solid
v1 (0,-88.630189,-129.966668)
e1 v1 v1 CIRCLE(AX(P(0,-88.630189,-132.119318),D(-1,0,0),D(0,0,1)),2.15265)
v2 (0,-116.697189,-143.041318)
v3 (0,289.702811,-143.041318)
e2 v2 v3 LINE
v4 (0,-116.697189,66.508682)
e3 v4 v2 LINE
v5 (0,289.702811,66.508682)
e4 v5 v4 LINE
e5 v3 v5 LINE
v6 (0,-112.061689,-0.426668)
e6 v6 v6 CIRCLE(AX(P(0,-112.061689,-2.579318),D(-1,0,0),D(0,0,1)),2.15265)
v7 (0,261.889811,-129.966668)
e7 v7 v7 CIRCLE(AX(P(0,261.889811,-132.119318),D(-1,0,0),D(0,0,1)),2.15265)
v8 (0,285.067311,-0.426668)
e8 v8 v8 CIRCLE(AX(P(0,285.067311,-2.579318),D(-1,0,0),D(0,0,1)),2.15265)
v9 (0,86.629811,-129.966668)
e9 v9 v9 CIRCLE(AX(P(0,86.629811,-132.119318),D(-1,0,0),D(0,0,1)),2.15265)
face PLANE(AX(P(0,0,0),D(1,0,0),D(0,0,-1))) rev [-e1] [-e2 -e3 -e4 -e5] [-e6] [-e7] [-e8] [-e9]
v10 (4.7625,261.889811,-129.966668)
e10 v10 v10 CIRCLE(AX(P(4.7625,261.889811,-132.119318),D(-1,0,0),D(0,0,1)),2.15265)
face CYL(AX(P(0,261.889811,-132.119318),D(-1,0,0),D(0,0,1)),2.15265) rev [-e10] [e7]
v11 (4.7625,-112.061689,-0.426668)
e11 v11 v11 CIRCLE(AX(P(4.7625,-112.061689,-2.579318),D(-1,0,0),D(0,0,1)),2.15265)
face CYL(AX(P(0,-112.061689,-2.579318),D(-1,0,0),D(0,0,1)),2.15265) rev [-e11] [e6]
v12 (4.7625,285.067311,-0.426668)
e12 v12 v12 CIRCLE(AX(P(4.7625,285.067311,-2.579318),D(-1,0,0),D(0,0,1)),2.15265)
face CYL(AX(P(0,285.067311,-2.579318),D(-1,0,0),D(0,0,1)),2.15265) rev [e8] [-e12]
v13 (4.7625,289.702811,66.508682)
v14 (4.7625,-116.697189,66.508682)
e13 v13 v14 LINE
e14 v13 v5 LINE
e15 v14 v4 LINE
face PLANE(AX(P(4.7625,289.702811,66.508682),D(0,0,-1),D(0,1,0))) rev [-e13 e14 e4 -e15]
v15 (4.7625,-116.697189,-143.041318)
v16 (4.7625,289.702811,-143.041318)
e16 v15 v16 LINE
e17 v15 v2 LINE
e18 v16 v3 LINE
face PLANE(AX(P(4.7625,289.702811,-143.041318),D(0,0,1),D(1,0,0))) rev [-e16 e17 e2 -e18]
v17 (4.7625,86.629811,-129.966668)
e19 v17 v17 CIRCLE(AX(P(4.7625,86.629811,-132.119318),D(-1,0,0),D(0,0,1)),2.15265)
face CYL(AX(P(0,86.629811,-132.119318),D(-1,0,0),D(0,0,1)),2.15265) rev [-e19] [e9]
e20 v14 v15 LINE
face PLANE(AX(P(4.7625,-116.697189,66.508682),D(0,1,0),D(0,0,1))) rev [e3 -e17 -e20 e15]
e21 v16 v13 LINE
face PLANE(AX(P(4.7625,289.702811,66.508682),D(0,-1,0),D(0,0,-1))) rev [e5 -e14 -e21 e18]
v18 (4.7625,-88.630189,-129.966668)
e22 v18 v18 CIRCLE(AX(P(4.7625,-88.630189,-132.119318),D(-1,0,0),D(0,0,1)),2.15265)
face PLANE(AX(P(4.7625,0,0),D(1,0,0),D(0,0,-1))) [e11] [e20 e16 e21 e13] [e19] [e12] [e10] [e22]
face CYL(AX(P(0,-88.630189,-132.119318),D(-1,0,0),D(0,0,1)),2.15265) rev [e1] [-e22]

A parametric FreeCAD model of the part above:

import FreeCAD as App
import Part
import Sketcher
from FreeCAD import Vector
Q = App.Units.Quantity

doc = App.newDocument("Part")
body = doc.addObject("PartDesign::Body", "Body")

# Sketch on YZ plane
sketch1 = body.newObject("Sketcher::SketchObject", "Sketch")
sketch1.AttachmentSupport = (doc.getObject("YZ_Plane"), [""])
sketch1.MapMode = "FlatFace"
sketch1.addGeometry(Part.LineSegment(Vector(290, 67, 0), Vector(-117, 67, 0)), False)
sketch1.addGeometry(Part.LineSegment(Vector(-117, 67, 0), Vector(-117, -143, 0)), False)
sketch1.addGeometry(Part.LineSegment(Vector(-117, -143, 0), Vector(290, -143, 0)), False)
sketch1.addGeometry(Part.LineSegment(Vector(290, -143, 0), Vector(290, 67, 0)), False)
sketch1.addConstraint(Sketcher.Constraint("Coincident", 0, 2, 1, 1))
sketch1.addConstraint(Sketcher.Constraint("Coincident", 1, 2, 2, 1))
sketch1.addConstraint(Sketcher.Constraint("Coincident", 2, 2, 3, 1))
sketch1.addConstraint(Sketcher.Constraint("Coincident", 3, 2, 0, 1))
sketch1.addConstraint(Sketcher.Constraint("Horizontal", 0))
sketch1.addConstraint(Sketcher.Constraint("Vertical", 1))
sketch1.addConstraint(Sketcher.Constraint("Horizontal", 2))
sketch1.addConstraint(Sketcher.Constraint("Vertical", 3))
sketch1.addConstraint(Sketcher.Constraint("DistanceX", 0, 2, 0, 1, Q("16 in")))
sketch1.addConstraint(Sketcher.Constraint("DistanceY", 1, 2, 1, 1, Q("8.25 in")))
sketch1.addConstraint(Sketcher.Constraint("DistanceX", 0, 2, -1, 1, 116.697189))
sketch1.addConstraint(Sketcher.Constraint("DistanceY", -1, 1, 0, 2, 66.508682))
pad1 = body.newObject("PartDesign::Pad", "Pad")
pad1.Profile = sketch1
pad1.Length = Q("0.1875 in")

# Sketch on YZ plane
sketch2 = body.newObject("Sketcher::SketchObject", "Sketch001")
sketch2.AttachmentSupport = (doc.getObject("YZ_Plane"), [""])
sketch2.MapMode = "FlatFace"
sketch2.addGeometry(Part.Circle(Vector(-88.6, -132.1, 0), Vector(0, 0, 1), 2.2), False)
sketch2.addGeometry(Part.Circle(Vector(261.9, -132.1, 0), Vector(0, 0, 1), 2.2), False)
sketch2.addGeometry(Part.Circle(Vector(86.6, -132.1, 0), Vector(0, 0, 1), 2.2), False)
sketch2.addGeometry(Part.Circle(Vector(-112.1, -2.6, 0), Vector(0, 0, 1), 2.2), False)
sketch2.addGeometry(Part.Circle(Vector(285.1, -2.6, 0), Vector(0, 0, 1), 2.2), False)
sketch2.addConstraint(Sketcher.Constraint("Equal", 0, 1))
sketch2.addConstraint(Sketcher.Constraint("Equal", 1, 2))
sketch2.addConstraint(Sketcher.Constraint("Equal", 2, 3))
sketch2.addConstraint(Sketcher.Constraint("Equal", 3, 4))
sketch2.addConstraint(Sketcher.Constraint("Horizontal", 0, 3, 1, 3))
sketch2.addConstraint(Sketcher.Constraint("Horizontal", 1, 3, 2, 3))
sketch2.addConstraint(Sketcher.Constraint("Horizontal", 3, 3, 4, 3))
sketch2.addConstraint(Sketcher.Constraint("Diameter", 0, Q("0.1695 in")))
sketch2.addConstraint(Sketcher.Constraint("DistanceX", 0, 3, 1, 3, Q("13.8 in")))
sketch2.addConstraint(Sketcher.Constraint("DistanceX", 0, 3, 2, 3, Q("6.9 in")))
sketch2.addConstraint(Sketcher.Constraint("DistanceY", 0, 3, 3, 3, Q("5.1 in")))
sketch2.addConstraint(Sketcher.Constraint("DistanceX", 2, 3, 4, 3, Q("7.8125 in")))
sketch2.addConstraint(Sketcher.Constraint("DistanceX", 3, 3, 4, 3, Q("15.635 in")))
sketch2.addConstraint(Sketcher.Constraint("DistanceX", 0, 3, -1, 1, 88.630189))
sketch2.addConstraint(Sketcher.Constraint("DistanceY", 0, 3, -1, 1, 132.119318))
doc.recompute()
hole = body.newObject("PartDesign::Hole", "Hole")
hole.Profile = sketch2
hole.ThreadType = "None"
hole.Diameter = Q("0.1695 in")
hole.DepthType = "ThroughAll"
hole.Reversed = True

doc.recompute()
